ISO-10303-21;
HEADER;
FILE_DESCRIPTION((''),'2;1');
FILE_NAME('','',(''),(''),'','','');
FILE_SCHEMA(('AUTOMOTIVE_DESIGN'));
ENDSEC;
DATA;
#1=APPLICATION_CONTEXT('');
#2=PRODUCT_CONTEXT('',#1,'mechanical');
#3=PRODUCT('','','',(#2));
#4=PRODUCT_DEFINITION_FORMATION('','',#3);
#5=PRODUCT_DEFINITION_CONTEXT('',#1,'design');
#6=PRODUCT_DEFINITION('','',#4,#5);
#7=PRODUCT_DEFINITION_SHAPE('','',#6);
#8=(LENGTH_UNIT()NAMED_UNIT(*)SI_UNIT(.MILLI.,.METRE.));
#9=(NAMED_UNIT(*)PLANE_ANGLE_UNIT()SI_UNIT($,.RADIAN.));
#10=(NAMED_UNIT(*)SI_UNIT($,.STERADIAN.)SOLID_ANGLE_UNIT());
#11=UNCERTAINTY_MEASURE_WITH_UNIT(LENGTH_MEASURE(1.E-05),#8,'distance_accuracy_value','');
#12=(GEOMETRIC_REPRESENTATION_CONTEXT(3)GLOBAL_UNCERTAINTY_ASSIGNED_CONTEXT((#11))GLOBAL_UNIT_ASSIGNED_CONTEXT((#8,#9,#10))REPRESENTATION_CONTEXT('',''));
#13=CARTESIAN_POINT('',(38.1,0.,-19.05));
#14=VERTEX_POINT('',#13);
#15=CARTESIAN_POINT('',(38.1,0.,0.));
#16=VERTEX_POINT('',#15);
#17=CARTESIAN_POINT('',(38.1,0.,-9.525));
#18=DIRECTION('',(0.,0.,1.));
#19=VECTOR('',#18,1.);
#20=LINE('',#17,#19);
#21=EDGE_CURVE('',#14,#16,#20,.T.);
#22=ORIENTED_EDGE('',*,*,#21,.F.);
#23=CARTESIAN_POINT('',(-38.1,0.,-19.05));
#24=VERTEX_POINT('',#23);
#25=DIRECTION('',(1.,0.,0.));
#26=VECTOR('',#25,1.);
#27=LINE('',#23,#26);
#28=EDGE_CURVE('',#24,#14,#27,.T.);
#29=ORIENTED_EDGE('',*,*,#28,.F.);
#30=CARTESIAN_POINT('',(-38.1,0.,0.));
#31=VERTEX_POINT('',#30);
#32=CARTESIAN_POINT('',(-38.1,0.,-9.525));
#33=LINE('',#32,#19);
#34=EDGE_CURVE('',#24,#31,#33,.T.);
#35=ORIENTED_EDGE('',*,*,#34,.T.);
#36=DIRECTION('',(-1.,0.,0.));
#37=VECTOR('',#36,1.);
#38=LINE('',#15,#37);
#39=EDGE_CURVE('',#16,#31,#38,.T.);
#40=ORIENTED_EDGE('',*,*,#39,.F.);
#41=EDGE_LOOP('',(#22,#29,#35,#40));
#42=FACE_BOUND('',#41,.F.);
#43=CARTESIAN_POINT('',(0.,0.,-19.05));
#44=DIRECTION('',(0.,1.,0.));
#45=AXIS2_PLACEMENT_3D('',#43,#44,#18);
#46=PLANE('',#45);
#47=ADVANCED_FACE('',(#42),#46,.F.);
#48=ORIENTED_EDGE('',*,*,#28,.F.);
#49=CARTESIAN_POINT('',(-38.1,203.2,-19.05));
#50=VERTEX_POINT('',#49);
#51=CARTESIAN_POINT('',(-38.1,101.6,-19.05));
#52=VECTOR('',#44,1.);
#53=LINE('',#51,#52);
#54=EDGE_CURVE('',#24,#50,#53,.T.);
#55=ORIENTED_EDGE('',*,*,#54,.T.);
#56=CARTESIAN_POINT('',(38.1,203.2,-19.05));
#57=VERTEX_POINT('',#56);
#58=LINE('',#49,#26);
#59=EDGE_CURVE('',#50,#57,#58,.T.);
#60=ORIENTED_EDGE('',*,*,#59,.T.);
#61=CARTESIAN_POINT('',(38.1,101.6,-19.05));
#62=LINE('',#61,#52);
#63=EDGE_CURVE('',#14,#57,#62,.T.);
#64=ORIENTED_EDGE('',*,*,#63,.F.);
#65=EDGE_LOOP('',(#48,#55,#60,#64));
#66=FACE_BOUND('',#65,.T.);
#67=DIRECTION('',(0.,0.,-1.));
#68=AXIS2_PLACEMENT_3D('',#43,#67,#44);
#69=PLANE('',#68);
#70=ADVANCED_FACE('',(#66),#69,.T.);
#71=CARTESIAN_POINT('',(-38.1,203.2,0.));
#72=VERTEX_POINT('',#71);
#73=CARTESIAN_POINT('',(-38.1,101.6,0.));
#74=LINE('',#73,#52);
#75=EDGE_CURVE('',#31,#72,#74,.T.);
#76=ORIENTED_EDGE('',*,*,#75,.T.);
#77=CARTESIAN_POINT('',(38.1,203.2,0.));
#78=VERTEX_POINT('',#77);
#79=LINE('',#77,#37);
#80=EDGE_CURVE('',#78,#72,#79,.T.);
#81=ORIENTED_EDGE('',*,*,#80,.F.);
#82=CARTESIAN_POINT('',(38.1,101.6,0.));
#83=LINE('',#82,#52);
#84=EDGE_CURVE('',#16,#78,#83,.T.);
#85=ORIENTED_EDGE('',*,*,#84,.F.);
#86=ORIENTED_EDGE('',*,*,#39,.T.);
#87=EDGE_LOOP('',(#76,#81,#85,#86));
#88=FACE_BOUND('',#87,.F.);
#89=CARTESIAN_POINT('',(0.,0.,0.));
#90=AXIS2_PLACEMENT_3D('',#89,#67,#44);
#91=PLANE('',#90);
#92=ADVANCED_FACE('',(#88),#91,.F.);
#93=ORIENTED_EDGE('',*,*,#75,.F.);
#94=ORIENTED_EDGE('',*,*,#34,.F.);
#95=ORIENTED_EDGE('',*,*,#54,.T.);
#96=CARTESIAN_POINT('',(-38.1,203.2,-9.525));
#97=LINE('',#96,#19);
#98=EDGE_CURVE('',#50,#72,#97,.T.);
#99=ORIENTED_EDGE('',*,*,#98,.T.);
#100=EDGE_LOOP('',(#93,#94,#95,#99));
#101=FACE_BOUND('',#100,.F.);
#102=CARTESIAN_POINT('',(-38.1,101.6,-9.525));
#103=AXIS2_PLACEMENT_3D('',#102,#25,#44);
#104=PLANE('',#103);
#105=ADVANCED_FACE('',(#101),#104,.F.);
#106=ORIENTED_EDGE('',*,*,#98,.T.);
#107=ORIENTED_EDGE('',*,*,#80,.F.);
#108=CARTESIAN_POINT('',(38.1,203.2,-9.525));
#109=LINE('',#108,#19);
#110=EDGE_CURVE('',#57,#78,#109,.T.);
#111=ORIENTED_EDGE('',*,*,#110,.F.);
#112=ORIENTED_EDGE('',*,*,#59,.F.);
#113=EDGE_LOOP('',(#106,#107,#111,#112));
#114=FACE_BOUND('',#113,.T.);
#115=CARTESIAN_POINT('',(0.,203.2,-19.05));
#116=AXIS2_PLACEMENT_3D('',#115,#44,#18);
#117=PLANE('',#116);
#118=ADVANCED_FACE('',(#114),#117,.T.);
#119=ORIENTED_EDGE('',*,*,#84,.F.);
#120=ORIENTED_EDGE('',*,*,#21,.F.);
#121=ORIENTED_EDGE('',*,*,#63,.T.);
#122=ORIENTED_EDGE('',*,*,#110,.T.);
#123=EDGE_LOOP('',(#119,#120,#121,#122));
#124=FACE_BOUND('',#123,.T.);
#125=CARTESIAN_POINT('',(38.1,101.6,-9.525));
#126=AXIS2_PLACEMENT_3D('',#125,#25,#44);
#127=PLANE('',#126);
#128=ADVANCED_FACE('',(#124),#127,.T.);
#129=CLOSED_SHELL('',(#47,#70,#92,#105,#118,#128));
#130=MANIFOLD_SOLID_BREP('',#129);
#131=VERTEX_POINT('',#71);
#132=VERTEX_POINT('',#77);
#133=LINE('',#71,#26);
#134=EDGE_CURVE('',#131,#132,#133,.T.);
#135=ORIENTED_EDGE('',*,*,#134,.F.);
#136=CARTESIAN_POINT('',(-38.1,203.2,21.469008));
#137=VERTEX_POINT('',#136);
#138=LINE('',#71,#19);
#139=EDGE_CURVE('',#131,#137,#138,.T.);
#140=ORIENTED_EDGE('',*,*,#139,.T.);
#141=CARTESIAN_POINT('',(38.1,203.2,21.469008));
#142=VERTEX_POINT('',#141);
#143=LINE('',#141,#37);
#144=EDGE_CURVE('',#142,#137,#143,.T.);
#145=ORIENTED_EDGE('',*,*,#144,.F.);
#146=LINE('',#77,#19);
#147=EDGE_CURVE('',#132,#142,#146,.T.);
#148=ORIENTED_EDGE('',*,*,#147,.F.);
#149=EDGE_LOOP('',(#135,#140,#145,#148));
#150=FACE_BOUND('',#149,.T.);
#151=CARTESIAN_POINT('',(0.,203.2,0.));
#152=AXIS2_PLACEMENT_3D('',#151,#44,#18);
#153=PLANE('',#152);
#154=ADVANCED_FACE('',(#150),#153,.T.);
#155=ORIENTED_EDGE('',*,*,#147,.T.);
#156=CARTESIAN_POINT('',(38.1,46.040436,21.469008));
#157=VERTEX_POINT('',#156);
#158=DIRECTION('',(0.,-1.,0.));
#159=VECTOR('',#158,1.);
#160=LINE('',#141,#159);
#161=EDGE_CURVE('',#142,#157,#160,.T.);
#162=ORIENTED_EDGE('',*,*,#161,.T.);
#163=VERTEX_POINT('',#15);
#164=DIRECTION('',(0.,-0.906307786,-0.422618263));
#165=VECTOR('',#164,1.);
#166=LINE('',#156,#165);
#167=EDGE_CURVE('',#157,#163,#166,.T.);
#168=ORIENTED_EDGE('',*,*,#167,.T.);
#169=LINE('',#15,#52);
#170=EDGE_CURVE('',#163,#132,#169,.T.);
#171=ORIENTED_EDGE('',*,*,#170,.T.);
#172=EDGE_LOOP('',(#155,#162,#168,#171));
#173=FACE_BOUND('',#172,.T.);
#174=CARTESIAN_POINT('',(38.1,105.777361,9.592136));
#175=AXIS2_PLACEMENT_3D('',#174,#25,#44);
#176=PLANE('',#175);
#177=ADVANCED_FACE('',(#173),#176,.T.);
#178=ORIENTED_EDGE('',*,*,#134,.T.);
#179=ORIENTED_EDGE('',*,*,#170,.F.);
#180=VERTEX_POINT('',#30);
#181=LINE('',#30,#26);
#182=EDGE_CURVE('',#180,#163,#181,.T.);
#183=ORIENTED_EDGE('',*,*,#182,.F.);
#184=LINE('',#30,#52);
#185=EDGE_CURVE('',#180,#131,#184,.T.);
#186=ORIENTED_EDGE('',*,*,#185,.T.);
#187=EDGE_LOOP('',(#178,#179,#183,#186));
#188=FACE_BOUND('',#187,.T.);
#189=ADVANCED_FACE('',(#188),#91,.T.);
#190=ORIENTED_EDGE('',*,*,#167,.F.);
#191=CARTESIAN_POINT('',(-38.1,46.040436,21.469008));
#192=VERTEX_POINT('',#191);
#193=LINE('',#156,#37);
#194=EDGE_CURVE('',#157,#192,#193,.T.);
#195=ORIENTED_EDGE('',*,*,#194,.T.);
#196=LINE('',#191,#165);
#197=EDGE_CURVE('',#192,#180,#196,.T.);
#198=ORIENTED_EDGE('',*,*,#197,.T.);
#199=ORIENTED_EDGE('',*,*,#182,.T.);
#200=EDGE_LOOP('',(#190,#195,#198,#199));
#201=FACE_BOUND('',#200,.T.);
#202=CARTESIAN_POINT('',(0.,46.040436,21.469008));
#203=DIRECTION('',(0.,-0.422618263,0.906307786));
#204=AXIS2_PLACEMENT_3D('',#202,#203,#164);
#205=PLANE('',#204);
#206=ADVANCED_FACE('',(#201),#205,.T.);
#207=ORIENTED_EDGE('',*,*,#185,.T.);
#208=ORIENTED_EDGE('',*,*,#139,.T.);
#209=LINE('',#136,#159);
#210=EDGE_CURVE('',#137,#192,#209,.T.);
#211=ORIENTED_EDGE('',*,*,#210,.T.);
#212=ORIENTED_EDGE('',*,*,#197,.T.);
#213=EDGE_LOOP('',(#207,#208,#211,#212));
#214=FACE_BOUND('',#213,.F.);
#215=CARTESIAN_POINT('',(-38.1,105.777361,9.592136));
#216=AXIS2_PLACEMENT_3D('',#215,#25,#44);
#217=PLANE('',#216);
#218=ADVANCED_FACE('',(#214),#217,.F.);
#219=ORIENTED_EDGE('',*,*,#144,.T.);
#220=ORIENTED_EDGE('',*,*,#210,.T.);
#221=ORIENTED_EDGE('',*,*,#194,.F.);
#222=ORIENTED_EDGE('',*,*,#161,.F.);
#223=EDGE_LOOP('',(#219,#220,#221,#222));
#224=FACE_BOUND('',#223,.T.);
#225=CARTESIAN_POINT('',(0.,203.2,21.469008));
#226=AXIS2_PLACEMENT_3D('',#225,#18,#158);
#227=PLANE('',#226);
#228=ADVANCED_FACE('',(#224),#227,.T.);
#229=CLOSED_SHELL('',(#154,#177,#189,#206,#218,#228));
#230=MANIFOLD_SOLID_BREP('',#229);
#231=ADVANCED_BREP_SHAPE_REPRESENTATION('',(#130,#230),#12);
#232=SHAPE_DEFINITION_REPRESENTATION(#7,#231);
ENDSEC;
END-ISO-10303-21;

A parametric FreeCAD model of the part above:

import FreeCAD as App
import Part
import Sketcher

V = App.Vector
Q = App.Units.Quantity


def add_polygon(sketch, points):
    """Adds a closed chain of lines whose ends are joined by coincident constraints."""
    first, n = sketch.GeometryCount, len(points)
    for a, b in zip(points, points[1:] + points[:1]):
        sketch.addGeometry(Part.LineSegment(App.Vector(*a, 0), App.Vector(*b, 0)), False)
    for i in range(n):
        sketch.addConstraint(Sketcher.Constraint("Coincident", first + i, 2, first + (i + 1) % n, 1))

doc = App.newDocument("Part")
body = doc.addObject("PartDesign::Body", "Body")

sketch1 = body.newObject("Sketcher::SketchObject", "Sketch")
sketch1.AttachmentSupport = (doc.getObject("YZ_Plane"), [""])
sketch1.MapMode = "FlatFace"
add_polygon(sketch1, [(46, 21), (0, 0), (203, 0), (203, 21)])
sketch1.addConstraint([
    Sketcher.Constraint("Horizontal", 1),
    Sketcher.Constraint("Vertical", 2),
    Sketcher.Constraint("Horizontal", 3),
    Sketcher.Constraint("Coincident", 0, 2, -1, 1),
    Sketcher.Constraint("DistanceX", 1, 1, 1, 2, Q("8 in")),
    Sketcher.Constraint("Distance", 0, Q("2 in")),
    Sketcher.Constraint("Angle", 0, Q("-155 deg")),
])
pad1 = body.newObject("PartDesign::Pad", "Pad")
pad1.Profile = sketch1
pad1.Length = Q("3 in")
pad1.Midplane = True
body2 = doc.addObject("PartDesign::Body", "Body001")

sketch2 = body2.newObject("Sketcher::SketchObject", "Sketch001")
sketch2.AttachmentSupport = (doc.getObject("YZ_Plane001"), [""])
sketch2.MapMode = "FlatFace"
add_polygon(sketch2, [(0, 0), (0, -19), (203, -19), (203, 0)])
sketch2.addConstraint([
    Sketcher.Constraint("Vertical", 0),
    Sketcher.Constraint("Horizontal", 1),
    Sketcher.Constraint("Vertical", 2),
    Sketcher.Constraint("Horizontal", 3),
    Sketcher.Constraint("Coincident", 3, 2, -1, 1),
    Sketcher.Constraint("DistanceX", 1, 1, 1, 2, Q("8 in")),
    Sketcher.Constraint("DistanceY", 0, 2, 0, 1, Q("0.75 in")),
])
pad2 = body2.newObject("PartDesign::Pad", "Pad001")
pad2.Profile = sketch2
pad2.Length = Q("3 in")
pad2.Midplane = True

doc.recompute()
